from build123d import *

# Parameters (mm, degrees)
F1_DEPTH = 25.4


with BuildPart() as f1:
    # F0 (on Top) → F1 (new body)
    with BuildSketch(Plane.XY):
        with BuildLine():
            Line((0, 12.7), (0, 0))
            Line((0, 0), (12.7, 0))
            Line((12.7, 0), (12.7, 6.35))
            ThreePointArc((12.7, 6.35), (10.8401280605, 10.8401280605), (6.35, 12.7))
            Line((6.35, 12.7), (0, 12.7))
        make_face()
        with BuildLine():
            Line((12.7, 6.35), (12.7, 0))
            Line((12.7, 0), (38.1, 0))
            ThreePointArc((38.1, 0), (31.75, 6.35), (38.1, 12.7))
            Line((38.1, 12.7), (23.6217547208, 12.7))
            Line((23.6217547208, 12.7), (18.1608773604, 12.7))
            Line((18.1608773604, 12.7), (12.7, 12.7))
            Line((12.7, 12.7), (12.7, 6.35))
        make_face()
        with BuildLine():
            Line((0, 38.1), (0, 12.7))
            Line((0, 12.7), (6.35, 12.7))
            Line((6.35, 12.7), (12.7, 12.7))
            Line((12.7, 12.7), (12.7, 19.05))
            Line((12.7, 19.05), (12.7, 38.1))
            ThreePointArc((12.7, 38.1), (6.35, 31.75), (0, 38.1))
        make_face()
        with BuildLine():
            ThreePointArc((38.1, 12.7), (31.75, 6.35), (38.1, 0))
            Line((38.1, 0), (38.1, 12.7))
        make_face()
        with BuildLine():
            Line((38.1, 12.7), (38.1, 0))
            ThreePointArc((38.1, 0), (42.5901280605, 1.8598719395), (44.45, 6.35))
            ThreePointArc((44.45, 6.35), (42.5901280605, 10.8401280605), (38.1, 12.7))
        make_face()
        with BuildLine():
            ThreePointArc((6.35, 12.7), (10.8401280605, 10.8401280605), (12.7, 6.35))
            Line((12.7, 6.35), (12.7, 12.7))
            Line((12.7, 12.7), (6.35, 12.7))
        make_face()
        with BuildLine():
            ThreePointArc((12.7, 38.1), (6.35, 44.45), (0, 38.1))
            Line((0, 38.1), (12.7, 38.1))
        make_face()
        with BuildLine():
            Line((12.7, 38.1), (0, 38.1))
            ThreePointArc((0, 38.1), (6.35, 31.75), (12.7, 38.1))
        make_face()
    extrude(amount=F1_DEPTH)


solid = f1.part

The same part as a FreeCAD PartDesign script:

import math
import FreeCAD as App
import Part
import Sketcher
Q = App.Units.Quantity

doc = App.newDocument("Part")
body = doc.addObject("PartDesign::Body", "Body")

# Sketch on XY plane
sketch1 = body.newObject("Sketcher::SketchObject", "Sketch")
sketch1.AttachmentSupport = (doc.getObject("XY_Plane"), [""])
sketch1.MapMode = "FlatFace"
sketch1.addGeometry(Part.LineSegment(App.Vector(38.1, 12.7, 0), App.Vector(12.7, 12.7, 0)), False)
sketch1.addGeometry(Part.LineSegment(App.Vector(12.7, 12.7, 0), App.Vector(12.7, 38.1, 0)), False)
sketch1.addGeometry(Part.ArcOfCircle(Part.Circle(App.Vector(6.35, 38.1, 0), App.Vector(0, 0, 1), 6.35), math.radians(0), math.radians(180)), False)
sketch1.addGeometry(Part.LineSegment(App.Vector(0, 38.1, 0), App.Vector(0, 0, 0)), False)
sketch1.addGeometry(Part.LineSegment(App.Vector(0, 0, 0), App.Vector(38.1, 0, 0)), False)
sketch1.addGeometry(Part.ArcOfCircle(Part.Circle(App.Vector(38.1, 6.35, 0), App.Vector(0, 0, 1), 6.35), math.radians(-90), math.radians(0)), False)
sketch1.addGeometry(Part.ArcOfCircle(Part.Circle(App.Vector(38.1, 6.35, 0), App.Vector(0, 0, 1), 6.35), math.radians(0), math.radians(90)), False)
sketch1.addConstraint(Sketcher.Constraint("Coincident", 0, 2, 1, 1))
sketch1.addConstraint(Sketcher.Constraint("Tangent", 1, 2, 2, 1))
sketch1.addConstraint(Sketcher.Constraint("Tangent", 2, 2, 3, 1))
sketch1.addConstraint(Sketcher.Constraint("Coincident", 3, 2, 4, 1))
sketch1.addConstraint(Sketcher.Constraint("Tangent", 4, 2, 5, 1))
sketch1.addConstraint(Sketcher.Constraint("Tangent", 5, 2, 6, 1))
sketch1.addConstraint(Sketcher.Constraint("Tangent", 6, 2, 0, 1))
sketch1.addConstraint(Sketcher.Constraint("Horizontal", 0))
sketch1.addConstraint(Sketcher.Constraint("Vertical", 1))
sketch1.addConstraint(Sketcher.Constraint("Vertical", 3))
sketch1.addConstraint(Sketcher.Constraint("Horizontal", 4))
sketch1.addConstraint(Sketcher.Constraint("Coincident", 3, 2, -1, 1))
sketch1.addConstraint(Sketcher.Constraint("Equal", 2, 5))
sketch1.addConstraint(Sketcher.Constraint("Equal", 5, 6))
sketch1.addConstraint(Sketcher.Constraint("Horizontal", 6, 3, 5, 2))
sketch1.addConstraint(Sketcher.Constraint("Equal", 0, 1))
sketch1.addConstraint(Sketcher.Constraint("DistanceX", 0, 2, 0, 1, Q("1 in")))
sketch1.addConstraint(Sketcher.Constraint("Radius", 2, Q("0.25 in")))
pad1 = body.newObject("PartDesign::Pad", "Pad")
pad1.Profile = sketch1
pad1.Length = Q("1 in")

doc.recompute()
